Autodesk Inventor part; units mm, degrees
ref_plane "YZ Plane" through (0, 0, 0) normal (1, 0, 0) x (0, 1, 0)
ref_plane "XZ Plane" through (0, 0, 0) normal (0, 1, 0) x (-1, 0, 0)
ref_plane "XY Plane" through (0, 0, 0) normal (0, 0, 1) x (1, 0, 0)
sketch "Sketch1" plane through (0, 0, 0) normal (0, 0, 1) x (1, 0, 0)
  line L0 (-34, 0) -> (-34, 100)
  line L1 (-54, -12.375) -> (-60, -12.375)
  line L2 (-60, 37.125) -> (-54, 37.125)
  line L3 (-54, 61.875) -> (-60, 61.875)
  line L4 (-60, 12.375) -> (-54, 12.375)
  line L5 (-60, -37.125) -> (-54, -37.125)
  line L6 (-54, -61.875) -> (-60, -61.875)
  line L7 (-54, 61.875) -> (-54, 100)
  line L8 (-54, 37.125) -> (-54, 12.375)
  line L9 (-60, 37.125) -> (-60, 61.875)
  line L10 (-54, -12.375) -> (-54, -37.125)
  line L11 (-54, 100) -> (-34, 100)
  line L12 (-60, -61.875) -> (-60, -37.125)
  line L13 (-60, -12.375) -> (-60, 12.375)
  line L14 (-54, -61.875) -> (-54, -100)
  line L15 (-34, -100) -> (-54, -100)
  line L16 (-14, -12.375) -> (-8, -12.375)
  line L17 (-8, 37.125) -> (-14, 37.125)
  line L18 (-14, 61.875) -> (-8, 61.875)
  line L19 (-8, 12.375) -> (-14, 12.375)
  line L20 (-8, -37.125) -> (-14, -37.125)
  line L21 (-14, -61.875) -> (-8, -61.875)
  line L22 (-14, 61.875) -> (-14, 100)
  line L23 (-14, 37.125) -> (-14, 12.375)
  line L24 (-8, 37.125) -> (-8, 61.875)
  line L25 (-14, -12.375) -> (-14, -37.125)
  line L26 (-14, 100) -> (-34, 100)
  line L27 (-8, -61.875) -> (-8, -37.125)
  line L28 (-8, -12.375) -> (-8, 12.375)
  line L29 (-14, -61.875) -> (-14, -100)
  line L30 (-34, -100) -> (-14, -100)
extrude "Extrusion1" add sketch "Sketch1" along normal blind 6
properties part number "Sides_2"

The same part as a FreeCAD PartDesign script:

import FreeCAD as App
import Part
import Sketcher

V = App.Vector
Q = App.Units.Quantity


def add_polygon(sketch, points):
    """Adds a closed chain of lines whose ends are joined by coincident constraints."""
    first, n = sketch.GeometryCount, len(points)
    for a, b in zip(points, points[1:] + points[:1]):
        sketch.addGeometry(Part.LineSegment(App.Vector(*a, 0), App.Vector(*b, 0)), False)
    for i in range(n):
        sketch.addConstraint(Sketcher.Constraint("Coincident", first + i, 2, first + (i + 1) % n, 1))

doc = App.newDocument("Part")
body = doc.addObject("PartDesign::Body", "Body")

# Sketch on XY plane
sketch1 = body.newObject("Sketcher::SketchObject", "Sketch")
sketch1.AttachmentSupport = (doc.getObject("XY_Plane"), [""])
sketch1.MapMode = "FlatFace"
add_polygon(sketch1, [(-60, -12.375), (-54, -12.375), (-54, -37.125), (-60, -37.125), (-60, -61.875), (-54, -61.875), (-54, -100), (-14, -100), (-14, -61.875), (-8, -61.875), (-8, -37.125), (-14, -37.125), (-14, -12.375), (-8, -12.375), (-8, 12.375), (-14, 12.375), (-14, 37.125), (-8, 37.125), (-8, 61.875), (-14, 61.875), (-14, 100), (-54, 100), (-54, 61.875), (-60, 61.875), (-60, 37.125), (-54, 37.125), (-54, 12.375), (-60, 12.375)])  # lines 0-27
sketch1.addConstraint([
    Sketcher.Constraint("Horizontal", 0),
    Sketcher.Constraint("Vertical", 1),
    Sketcher.Constraint("Horizontal", 2),
    Sketcher.Constraint("Vertical", 3),
    Sketcher.Constraint("Horizontal", 4),
    Sketcher.Constraint("Vertical", 5),
    Sketcher.Constraint("Horizontal", 6),
    Sketcher.Constraint("Vertical", 7),
    Sketcher.Constraint("Horizontal", 8),
    Sketcher.Constraint("Vertical", 9),
    Sketcher.Constraint("Horizontal", 10),
    Sketcher.Constraint("Vertical", 11),
    Sketcher.Constraint("Horizontal", 12),
    Sketcher.Constraint("Vertical", 13),
    Sketcher.Constraint("Horizontal", 14),
    Sketcher.Constraint("Vertical", 15),
    Sketcher.Constraint("Horizontal", 16),
    Sketcher.Constraint("Vertical", 17),
    Sketcher.Constraint("Horizontal", 18),
    Sketcher.Constraint("Vertical", 19),
    Sketcher.Constraint("Horizontal", 20),
    Sketcher.Constraint("Vertical", 21),
    Sketcher.Constraint("Horizontal", 22),
    Sketcher.Constraint("Vertical", 23),
    Sketcher.Constraint("Horizontal", 24),
    Sketcher.Constraint("Vertical", 25),
    Sketcher.Constraint("Horizontal", 26),
    Sketcher.Constraint("Vertical", 27),
    Sketcher.Constraint("Symmetric", 11, 2, 14, 2, -1),
    Sketcher.Constraint("Symmetric", 9, 2, 16, 2, -1),
    Sketcher.Constraint("Symmetric", 7, 2, 18, 2, -1),
    Sketcher.Constraint("Symmetric", 5, 2, 20, 2, -1),
    Sketcher.Constraint("Symmetric", 3, 2, 22, 2, -1),
    Sketcher.Constraint("Symmetric", 1, 2, 24, 2, -1),
    Sketcher.Constraint("Horizontal", 4, 2, 7, 2),
    Sketcher.Constraint("Horizontal", 2, 2, 9, 2),
    Sketcher.Constraint("Horizontal", 0, 2, 11, 2),
    Sketcher.Constraint("Horizontal", 14, 2, 25, 2),
    Sketcher.Constraint("Vertical", 1, 2, 4, 2),
    Sketcher.Constraint("Vertical", 7, 2, 10, 2),
    Sketcher.Constraint("Vertical", 9, 2, 12, 2),
    Sketcher.Constraint("Vertical", 23, 2, 26, 2),
    Sketcher.Constraint("Equal", 4, 8),
    Sketcher.Constraint("Equal", 1, 3),
    Sketcher.Constraint("Equal", 11, 13),
    Sketcher.Constraint("DistanceX", 0, 1, 0, 2, Q("6 mm")),
    Sketcher.Constraint("DistanceX", 6, 1, 6, 2, Q("40 mm")),
    Sketcher.Constraint("DistanceX", 0, 2, -1, 1, Q("54 mm")),
    Sketcher.Constraint("DistanceY", 5, 2, -1, 1, Q("100 mm")),
    Sketcher.Constraint("DistanceY", 1, 2, 1, 1, Q("24.75 mm")),
])
pad1 = body.newObject("PartDesign::Pad", "Pad")
pad1.Profile = sketch1
pad1.Length = 6

doc.recompute()
